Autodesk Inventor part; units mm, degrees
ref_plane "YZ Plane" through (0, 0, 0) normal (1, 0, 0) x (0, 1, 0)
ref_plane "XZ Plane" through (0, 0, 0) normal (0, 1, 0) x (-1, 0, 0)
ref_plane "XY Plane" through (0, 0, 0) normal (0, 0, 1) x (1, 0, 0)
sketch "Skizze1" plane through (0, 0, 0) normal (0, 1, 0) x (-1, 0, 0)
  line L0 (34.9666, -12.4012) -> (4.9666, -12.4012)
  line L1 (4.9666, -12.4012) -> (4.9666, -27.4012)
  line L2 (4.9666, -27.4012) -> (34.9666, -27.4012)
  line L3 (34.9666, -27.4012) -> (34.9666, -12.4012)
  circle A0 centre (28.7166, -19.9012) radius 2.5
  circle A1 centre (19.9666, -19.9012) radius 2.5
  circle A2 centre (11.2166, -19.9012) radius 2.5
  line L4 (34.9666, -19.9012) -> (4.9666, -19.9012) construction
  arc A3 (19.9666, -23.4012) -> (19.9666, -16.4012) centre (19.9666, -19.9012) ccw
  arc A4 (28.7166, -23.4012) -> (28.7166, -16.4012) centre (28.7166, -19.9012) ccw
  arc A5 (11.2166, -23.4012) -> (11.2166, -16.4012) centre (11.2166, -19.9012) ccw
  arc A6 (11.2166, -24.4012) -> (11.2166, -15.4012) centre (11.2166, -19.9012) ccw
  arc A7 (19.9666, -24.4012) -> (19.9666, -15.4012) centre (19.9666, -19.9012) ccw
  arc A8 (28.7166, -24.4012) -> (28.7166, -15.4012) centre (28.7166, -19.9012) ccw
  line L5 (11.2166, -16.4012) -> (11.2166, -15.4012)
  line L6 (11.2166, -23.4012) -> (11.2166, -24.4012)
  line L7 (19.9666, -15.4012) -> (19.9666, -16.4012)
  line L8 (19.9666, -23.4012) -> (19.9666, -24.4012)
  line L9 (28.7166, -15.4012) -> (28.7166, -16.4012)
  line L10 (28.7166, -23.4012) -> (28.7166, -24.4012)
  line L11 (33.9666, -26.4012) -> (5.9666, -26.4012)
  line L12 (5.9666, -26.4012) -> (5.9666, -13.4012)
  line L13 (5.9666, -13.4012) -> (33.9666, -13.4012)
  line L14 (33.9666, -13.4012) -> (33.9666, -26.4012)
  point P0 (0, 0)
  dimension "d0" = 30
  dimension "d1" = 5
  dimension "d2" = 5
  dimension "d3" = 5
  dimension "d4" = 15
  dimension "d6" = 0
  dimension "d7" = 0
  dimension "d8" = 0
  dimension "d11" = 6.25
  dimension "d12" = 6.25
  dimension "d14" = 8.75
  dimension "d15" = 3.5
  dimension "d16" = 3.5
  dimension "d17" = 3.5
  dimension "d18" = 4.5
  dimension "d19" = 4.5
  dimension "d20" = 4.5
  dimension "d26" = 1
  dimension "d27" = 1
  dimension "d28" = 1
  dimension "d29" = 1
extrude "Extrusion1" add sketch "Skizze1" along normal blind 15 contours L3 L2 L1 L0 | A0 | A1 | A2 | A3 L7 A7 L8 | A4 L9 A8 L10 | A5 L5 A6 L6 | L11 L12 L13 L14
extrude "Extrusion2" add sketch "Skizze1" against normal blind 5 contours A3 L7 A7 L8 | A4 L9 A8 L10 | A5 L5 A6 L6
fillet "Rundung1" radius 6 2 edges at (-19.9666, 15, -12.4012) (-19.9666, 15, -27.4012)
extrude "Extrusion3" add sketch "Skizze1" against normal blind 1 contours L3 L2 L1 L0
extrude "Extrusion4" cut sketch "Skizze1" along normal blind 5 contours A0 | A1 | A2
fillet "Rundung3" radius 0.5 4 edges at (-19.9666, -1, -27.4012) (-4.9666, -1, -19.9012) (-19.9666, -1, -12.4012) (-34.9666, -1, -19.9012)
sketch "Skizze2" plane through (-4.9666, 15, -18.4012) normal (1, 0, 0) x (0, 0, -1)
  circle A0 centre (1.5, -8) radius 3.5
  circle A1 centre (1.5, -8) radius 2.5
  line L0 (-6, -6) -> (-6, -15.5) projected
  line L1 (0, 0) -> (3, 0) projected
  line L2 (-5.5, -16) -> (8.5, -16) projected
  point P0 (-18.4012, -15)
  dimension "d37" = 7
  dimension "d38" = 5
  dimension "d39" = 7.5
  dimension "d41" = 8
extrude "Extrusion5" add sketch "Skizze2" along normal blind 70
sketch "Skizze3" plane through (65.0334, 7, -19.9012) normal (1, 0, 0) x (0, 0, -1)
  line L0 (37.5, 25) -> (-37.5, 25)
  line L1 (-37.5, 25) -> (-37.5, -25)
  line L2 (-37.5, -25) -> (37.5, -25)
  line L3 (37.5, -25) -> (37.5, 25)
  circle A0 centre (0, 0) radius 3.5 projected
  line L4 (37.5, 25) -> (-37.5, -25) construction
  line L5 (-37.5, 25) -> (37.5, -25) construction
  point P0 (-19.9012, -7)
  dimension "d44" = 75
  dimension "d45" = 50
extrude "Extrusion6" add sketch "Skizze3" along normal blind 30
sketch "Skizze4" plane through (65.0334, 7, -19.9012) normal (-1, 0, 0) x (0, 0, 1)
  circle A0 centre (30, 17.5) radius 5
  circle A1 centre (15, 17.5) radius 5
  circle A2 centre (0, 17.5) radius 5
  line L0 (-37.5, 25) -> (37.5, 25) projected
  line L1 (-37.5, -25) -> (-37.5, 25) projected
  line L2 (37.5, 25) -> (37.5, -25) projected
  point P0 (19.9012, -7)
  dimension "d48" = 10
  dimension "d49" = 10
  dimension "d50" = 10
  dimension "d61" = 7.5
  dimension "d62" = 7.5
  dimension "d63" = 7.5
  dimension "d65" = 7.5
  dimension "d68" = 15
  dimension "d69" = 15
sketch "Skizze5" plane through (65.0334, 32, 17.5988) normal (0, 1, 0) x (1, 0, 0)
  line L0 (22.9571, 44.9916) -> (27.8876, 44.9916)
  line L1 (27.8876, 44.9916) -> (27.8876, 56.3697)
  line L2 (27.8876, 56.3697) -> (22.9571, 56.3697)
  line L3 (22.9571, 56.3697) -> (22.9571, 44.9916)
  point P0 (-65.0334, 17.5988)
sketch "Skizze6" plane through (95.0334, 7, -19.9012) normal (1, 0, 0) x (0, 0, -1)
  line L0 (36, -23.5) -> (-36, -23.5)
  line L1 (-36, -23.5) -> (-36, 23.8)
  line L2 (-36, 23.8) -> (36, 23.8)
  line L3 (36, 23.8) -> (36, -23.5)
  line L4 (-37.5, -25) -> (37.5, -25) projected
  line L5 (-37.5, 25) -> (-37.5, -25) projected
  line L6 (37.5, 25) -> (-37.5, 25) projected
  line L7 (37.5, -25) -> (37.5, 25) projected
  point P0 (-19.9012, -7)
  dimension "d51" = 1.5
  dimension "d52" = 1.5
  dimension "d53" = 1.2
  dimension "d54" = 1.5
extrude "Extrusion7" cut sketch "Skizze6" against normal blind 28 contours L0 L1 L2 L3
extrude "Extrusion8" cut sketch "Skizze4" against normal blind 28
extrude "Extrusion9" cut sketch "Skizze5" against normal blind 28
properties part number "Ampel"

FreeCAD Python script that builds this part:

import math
import FreeCAD as App
import Part
import Sketcher

V = App.Vector


def edges_at(feature, points):
    """Names of the edges that pass closest to the given points."""
    edges = feature.Shape.Edges
    near = lambda p: min(range(len(edges)), key=lambda i: edges[i].distToShape(Part.Vertex(*p))[0])
    return sorted({f"Edge{near(p) + 1}" for p in points})

doc = App.newDocument("Part")
body = doc.addObject("PartDesign::Body", "Body")
body.AllowCompound = True

# Sketch on XZ plane
sketch1 = body.newObject("Sketcher::SketchObject", "Sketch")
sketch1.AttachmentSupport = (doc.getObject("XZ_Plane"), [""])
sketch1.MapMode = "FlatFace"
sketch1.addGeometry([
    Part.LineSegment(V(-35, -27, 0), V(-35, -12, 0)),
    Part.LineSegment(V(-35, -12, 0), V(-5, -12, 0)),
    Part.LineSegment(V(-5, -12, 0), V(-5, -27, 0)),
    Part.LineSegment(V(-5, -27, 0), V(-35, -27, 0)),
], False)
sketch1.addConstraint([
    Sketcher.Constraint("Coincident", 0, 2, 1, 1),
    Sketcher.Constraint("Coincident", 1, 2, 2, 1),
    Sketcher.Constraint("Coincident", 2, 2, 3, 1),
    Sketcher.Constraint("Coincident", 3, 2, 0, 1),
    Sketcher.Constraint("Vertical", 0),
    Sketcher.Constraint("Horizontal", 1),
    Sketcher.Constraint("Vertical", 2),
    Sketcher.Constraint("Horizontal", 3),
    Sketcher.Constraint("DistanceX", 1, 1, 1, 2, 30.0),
    Sketcher.Constraint("DistanceY", 0, 1, 0, 2, 15.0),
    Sketcher.Constraint("DistanceX", 0, 2, -1, 1, 34.9666),
    Sketcher.Constraint("DistanceY", 0, 2, -1, 1, 12.4012),
])
pad1 = body.newObject("PartDesign::Pad", "Pad")
pad1.Profile = sketch1
pad1.Length = 15
pad1.Reversed = True

# Sketch on XZ plane
sketch2 = body.newObject("Sketcher::SketchObject", "Sketch001")
sketch2.AttachmentSupport = (doc.getObject("XZ_Plane"), [""])
sketch2.MapMode = "FlatFace"
sketch2.addGeometry([
    Part.ArcOfCircle(Part.Circle(V(-20, -19.9, 0), V(0, 0, 1), 3.5), math.radians(90), math.radians(270)),  # 0
    Part.LineSegment(V(-20, -23.4, 0), V(-20, -24.4, 0)),  # 1
    Part.ArcOfCircle(Part.Circle(V(-20, -19.9, 0), V(0, 0, 1), 4.5), math.radians(90), math.radians(270)),  # 2
    Part.LineSegment(V(-20, -15.4, 0), V(-20, -16.4, 0)),  # 3
    Part.ArcOfCircle(Part.Circle(V(-28.7, -19.9, 0), V(0, 0, 1), 3.5), math.radians(90), math.radians(270)),  # 4
    Part.LineSegment(V(-28.7, -23.4, 0), V(-28.7, -24.4, 0)),  # 5
    Part.ArcOfCircle(Part.Circle(V(-28.7, -19.9, 0), V(0, 0, 1), 4.5), math.radians(90), math.radians(270)),  # 6
    Part.LineSegment(V(-28.7, -15.4, 0), V(-28.7, -16.4, 0)),  # 7
    Part.ArcOfCircle(Part.Circle(V(-11.2, -19.9, 0), V(0, 0, 1), 3.5), math.radians(90), math.radians(270)),  # 8
    Part.LineSegment(V(-11.2, -23.4, 0), V(-11.2, -24.4, 0)),  # 9
    Part.ArcOfCircle(Part.Circle(V(-11.2, -19.9, 0), V(0, 0, 1), 4.5), math.radians(90), math.radians(270)),  # 10
    Part.LineSegment(V(-11.2, -15.4, 0), V(-11.2, -16.4, 0)),  # 11
], False)
sketch2.addConstraint([
    Sketcher.Constraint("Coincident", 0, 2, 1, 1),
    Sketcher.Constraint("Coincident", 1, 2, 2, 2),
    Sketcher.Constraint("Coincident", 2, 1, 3, 1),
    Sketcher.Constraint("Coincident", 3, 2, 0, 1),
    Sketcher.Constraint("Coincident", 4, 2, 5, 1),
    Sketcher.Constraint("Coincident", 5, 2, 6, 2),
    Sketcher.Constraint("Coincident", 6, 1, 7, 1),
    Sketcher.Constraint("Coincident", 7, 2, 4, 1),
    Sketcher.Constraint("Coincident", 8, 2, 9, 1),
    Sketcher.Constraint("Coincident", 9, 2, 10, 2),
    Sketcher.Constraint("Coincident", 10, 1, 11, 1),
    Sketcher.Constraint("Coincident", 11, 2, 8, 1),
    Sketcher.Constraint("Vertical", 1),
    Sketcher.Constraint("Vertical", 3),
    Sketcher.Constraint("Vertical", 5),
    Sketcher.Constraint("Vertical", 7),
    Sketcher.Constraint("Vertical", 9),
    Sketcher.Constraint("Vertical", 11),
    Sketcher.Constraint("Coincident", 2, 3, 0, 3),
    Sketcher.Constraint("Coincident", 6, 3, 4, 3),
    Sketcher.Constraint("Coincident", 10, 3, 8, 3),
    Sketcher.Constraint("Equal", 0, 4),
    Sketcher.Constraint("Equal", 2, 6),
    Sketcher.Constraint("Equal", 4, 8),
    Sketcher.Constraint("Equal", 6, 10),
    Sketcher.Constraint("Horizontal", 2, 3, 4, 3),
    Sketcher.Constraint("Horizontal", 6, 3, 8, 3),
    Sketcher.Constraint("Vertical", 2, 3, 0, 2),
    Sketcher.Constraint("Vertical", 1, 2, 2, 1),
    Sketcher.Constraint("Vertical", 6, 3, 4, 2),
    Sketcher.Constraint("Vertical", 5, 2, 6, 1),
    Sketcher.Constraint("Vertical", 10, 3, 8, 2),
    Sketcher.Constraint("Vertical", 9, 2, 10, 1),
    Sketcher.Constraint("Radius", 0, 3.5),
    Sketcher.Constraint("Radius", 2, 4.5),
    Sketcher.Constraint("DistanceX", 4, 3, 0, 3, 8.75),
    Sketcher.Constraint("DistanceX", 0, 3, 8, 3, 8.75),
    Sketcher.Constraint("DistanceX", 0, 3, -1, 1, 19.9666),
    Sketcher.Constraint("DistanceY", 0, 3, -1, 1, 19.9012),
])
pad2 = body.newObject("PartDesign::Pad", "Pad001")
pad2.Profile = sketch2
pad2.Length = 5
doc.recompute()

fillet = body.newObject("PartDesign::Fillet", "Fillet")
fillet.Base = (pad2, edges_at(pad2, [(-19.967, 15, -12.401), (-19.967, 15, -27.401)]))
fillet.Radius = 6

# Sketch on XZ plane
sketch3 = body.newObject("Sketcher::SketchObject", "Sketch002")
sketch3.AttachmentSupport = (doc.getObject("XZ_Plane"), [""])
sketch3.MapMode = "FlatFace"
sketch3.addGeometry([
    Part.LineSegment(V(-35, -27, 0), V(-35, -12, 0)),  # 0
    Part.LineSegment(V(-35, -12, 0), V(-5, -12, 0)),  # 1
    Part.LineSegment(V(-5, -12, 0), V(-5, -27, 0)),  # 2
    Part.LineSegment(V(-5, -27, 0), V(-35, -27, 0)),  # 3
    Part.LineSegment(V(-34, -13, 0), V(-34, -26, 0)),  # 4
    Part.LineSegment(V(-34, -26, 0), V(-6, -26, 0)),  # 5
    Part.LineSegment(V(-6, -26, 0), V(-6, -13, 0)),  # 6
    Part.LineSegment(V(-6, -13, 0), V(-34, -13, 0)),  # 7
], False)
sketch3.addConstraint([
    Sketcher.Constraint("Coincident", 0, 2, 1, 1),
    Sketcher.Constraint("Coincident", 1, 2, 2, 1),
    Sketcher.Constraint("Coincident", 2, 2, 3, 1),
    Sketcher.Constraint("Coincident", 3, 2, 0, 1),
    Sketcher.Constraint("Coincident", 4, 2, 5, 1),
    Sketcher.Constraint("Coincident", 5, 2, 6, 1),
    Sketcher.Constraint("Coincident", 6, 2, 7, 1),
    Sketcher.Constraint("Coincident", 7, 2, 4, 1),
    Sketcher.Constraint("Vertical", 0),
    Sketcher.Constraint("Horizontal", 1),
    Sketcher.Constraint("Vertical", 2),
    Sketcher.Constraint("Horizontal", 3),
    Sketcher.Constraint("Vertical", 4),
    Sketcher.Constraint("Horizontal", 5),
    Sketcher.Constraint("Vertical", 6),
    Sketcher.Constraint("Horizontal", 7),
    Sketcher.Constraint("DistanceX", 1, 1, 1, 2, 30.0),
    Sketcher.Constraint("DistanceY", 0, 1, 0, 2, 15.0),
    Sketcher.Constraint("DistanceX", 3, 2, 4, 2, 1.0),
    Sketcher.Constraint("DistanceY", 3, 2, 4, 2, 1.0),
    Sketcher.Constraint("DistanceX", 5, 2, 2, 2, 1.0),
    Sketcher.Constraint("DistanceY", 6, 2, 1, 2, 1.0),
    Sketcher.Constraint("DistanceX", 0, 2, -1, 1, 34.9666),
    Sketcher.Constraint("DistanceY", 0, 2, -1, 1, 12.4012),
])
pad3 = body.newObject("PartDesign::Pad", "Pad002")
pad3.Profile = sketch3
pad3.Length = 1

# Sketch on XZ plane
sketch4 = body.newObject("Sketcher::SketchObject", "Sketch003")
sketch4.AttachmentSupport = (doc.getObject("XZ_Plane"), [""])
sketch4.MapMode = "FlatFace"
sketch4.addGeometry([
    Part.Circle(V(-28.7, -19.9, 0), V(0, 0, 1), 2.5),
    Part.Circle(V(-20, -19.9, 0), V(0, 0, 1), 2.5),
    Part.Circle(V(-11.2, -19.9, 0), V(0, 0, 1), 2.5),
], False)
sketch4.addConstraint([
    Sketcher.Constraint("Equal", 0, 1),
    Sketcher.Constraint("Equal", 1, 2),
    Sketcher.Constraint("Horizontal", 0, 3, 1, 3),
    Sketcher.Constraint("Horizontal", 1, 3, 2, 3),
    Sketcher.Constraint("Diameter", 0, 5.0),
    Sketcher.Constraint("DistanceX", 0, 3, 1, 3, 8.75),
    Sketcher.Constraint("DistanceX", 1, 3, 2, 3, 8.75),
    Sketcher.Constraint("DistanceX", 0, 3, -1, 1, 28.7166),
    Sketcher.Constraint("DistanceY", 0, 3, -1, 1, 19.9012),
])
pocket1 = body.newObject("PartDesign::Pocket", "Pocket")
pocket1.Profile = sketch4
pocket1.Length = 5
doc.recompute()

fillet2 = body.newObject("PartDesign::Fillet", "Fillet001")
fillet2.Base = (pocket1, edges_at(pocket1, [
    (-19.967, -1, -27.401),
    (-4.967, -1, -19.901),
    (-19.967, -1, -12.401),
    (-34.967, -1, -19.901),
]))
fillet2.Radius = 0.5

# Sketch on YZ plane
sketch5 = body.newObject("Sketcher::SketchObject", "Sketch004")
sketch5.AttachmentSupport = (doc.getObject("YZ_Plane"), [""])
sketch5.MapMode = "FlatFace"
sketch5.AttachmentOffset = App.Placement(V(0, 0, -4.9666), App.Rotation())
sketch5.addGeometry([
    Part.Circle(V(7, -19.9, 0), V(0, 0, 1), 3.5),
    Part.Circle(V(7, -19.9, 0), V(0, 0, 1), 2.5),
], False)
sketch5.addConstraint([
    Sketcher.Constraint("Coincident", 1, 3, 0, 3),
    Sketcher.Constraint("Diameter", 0, 7.0),
    Sketcher.Constraint("Diameter", 1, 5.0),
    Sketcher.Constraint("DistanceX", -1, 1, 0, 3, 7.0),
    Sketcher.Constraint("DistanceY", 0, 3, -1, 1, 19.9012),
])
pad4 = body.newObject("PartDesign::Pad", "Pad003")
pad4.Profile = sketch5
pad4.Length = 70

# Sketch on YZ plane
sketch6 = body.newObject("Sketcher::SketchObject", "Sketch005")
sketch6.AttachmentSupport = (doc.getObject("YZ_Plane"), [""])
sketch6.MapMode = "FlatFace"
sketch6.AttachmentOffset = App.Placement(V(0, 0, 65.0334), App.Rotation())
sketch6.addGeometry([
    Part.LineSegment(V(-18, -57.4, 0), V(32, -57.4, 0)),  # 0
    Part.LineSegment(V(32, -57.4, 0), V(32, 17.6, 0)),  # 1
    Part.LineSegment(V(32, 17.6, 0), V(-18, 17.6, 0)),  # 2
    Part.LineSegment(V(-18, 17.6, 0), V(-18, -57.4, 0)),  # 3
    Part.Circle(V(7, -19.9, 0), V(0, 0, 1), 3.5),  # 4
], False)
sketch6.addConstraint([
    Sketcher.Constraint("Coincident", 0, 2, 1, 1),
    Sketcher.Constraint("Coincident", 1, 2, 2, 1),
    Sketcher.Constraint("Coincident", 2, 2, 3, 1),
    Sketcher.Constraint("Coincident", 3, 2, 0, 1),
    Sketcher.Constraint("Horizontal", 0),
    Sketcher.Constraint("Vertical", 1),
    Sketcher.Constraint("Horizontal", 2),
    Sketcher.Constraint("Vertical", 3),
    Sketcher.Constraint("DistanceX", 0, 1, 0, 2, 50.0),
    Sketcher.Constraint("DistanceY", 1, 1, 1, 2, 75.0),
    Sketcher.Constraint("Diameter", 4, 7.0),
    Sketcher.Constraint("DistanceX", -1, 1, 4, 3, 7.0),
    Sketcher.Constraint("DistanceX", -1, 1, 0, 2, 32.0),
    Sketcher.Constraint("DistanceY", 0, 2, 4, 3, 37.5),
    Sketcher.Constraint("DistanceY", 4, 3, -1, 1, 19.9012),
])
pad5 = body.newObject("PartDesign::Pad", "Pad004")
pad5.Profile = sketch6
pad5.Length = 30

# Sketch on YZ plane
sketch7 = body.newObject("Sketcher::SketchObject", "Sketch006")
sketch7.AttachmentSupport = (doc.getObject("YZ_Plane"), [""])
sketch7.MapMode = "FlatFace"
sketch7.AttachmentOffset = App.Placement(V(0, 0, 95.0334), App.Rotation())
sketch7.addGeometry([
    Part.LineSegment(V(-16, 16, 0), V(-16, -56, 0)),
    Part.LineSegment(V(-16, -56, 0), V(31, -56, 0)),
    Part.LineSegment(V(31, -56, 0), V(31, 16, 0)),
    Part.LineSegment(V(31, 16, 0), V(-16, 16, 0)),
], False)
sketch7.addConstraint([
    Sketcher.Constraint("Coincident", 0, 2, 1, 1),
    Sketcher.Constraint("Coincident", 1, 2, 2, 1),
    Sketcher.Constraint("Coincident", 2, 2, 3, 1),
    Sketcher.Constraint("Coincident", 3, 2, 0, 1),
    Sketcher.Constraint("Vertical", 0),
    Sketcher.Constraint("Horizontal", 1),
    Sketcher.Constraint("Vertical", 2),
    Sketcher.Constraint("Horizontal", 3),
    Sketcher.Constraint("DistanceY", 0, 2, 0, 1, 72.0),
    Sketcher.Constraint("DistanceX", 1, 1, 1, 2, 47.3),
    Sketcher.Constraint("DistanceX", 0, 2, -1, 1, 16.5),
    Sketcher.Constraint("DistanceY", 0, 2, -1, 1, 55.9012),
])
pocket2 = body.newObject("PartDesign::Pocket", "Pocket001")
pocket2.Profile = sketch7
pocket2.Length = 28

# Sketch on YZ plane
sketch8 = body.newObject("Sketcher::SketchObject", "Sketch007")
sketch8.AttachmentSupport = (doc.getObject("YZ_Plane"), [""])
sketch8.MapMode = "FlatFace"
sketch8.AttachmentOffset = App.Placement(V(0, 0, 65.0334), App.Rotation())
sketch8.addGeometry([
    Part.Circle(V(24, 10, 0), V(0, 0, 1), 5),
    Part.Circle(V(24, -5, 0), V(0, 0, 1), 5),
    Part.Circle(V(24, -20, 0), V(0, 0, 1), 5),
], False)
sketch8.addConstraint([
    Sketcher.Constraint("Equal", 0, 1),
    Sketcher.Constraint("Equal", 1, 2),
    Sketcher.Constraint("Vertical", 0, 3, 1, 3),
    Sketcher.Constraint("Vertical", 1, 3, 2, 3),
    Sketcher.Constraint("Diameter", 0, 10.0),
    Sketcher.Constraint("DistanceY", 1, 3, 0, 3, 15.0),
    Sketcher.Constraint("DistanceY", 2, 3, 1, 3, 15.0),
    Sketcher.Constraint("DistanceX", -1, 1, 0, 3, 24.5),
    Sketcher.Constraint("DistanceY", -1, 1, 0, 3, 10.0988),
])
pocket3 = body.newObject("PartDesign::Pocket", "Pocket002")
pocket3.Profile = sketch8
pocket3.Length = 28
pocket3.Reversed = True

# Sketch on XZ plane
sketch9 = body.newObject("Sketcher::SketchObject", "Sketch008")
sketch9.AttachmentSupport = (doc.getObject("XZ_Plane"), [""])
sketch9.MapMode = "FlatFace"
sketch9.AttachmentOffset = App.Placement(V(0, 0, -32), App.Rotation())
sketch9.addGeometry([
    Part.LineSegment(V(88, -38.8, 0), V(88, -27.4, 0)),
    Part.LineSegment(V(88, -27.4, 0), V(92.9, -27.4, 0)),
    Part.LineSegment(V(92.9, -27.4, 0), V(92.9, -38.8, 0)),
    Part.LineSegment(V(92.9, -38.8, 0), V(88, -38.8, 0)),
], False)
sketch9.addConstraint([
    Sketcher.Constraint("Coincident", 0, 2, 1, 1),
    Sketcher.Constraint("Coincident", 1, 2, 2, 1),
    Sketcher.Constraint("Coincident", 2, 2, 3, 1),
    Sketcher.Constraint("Coincident", 3, 2, 0, 1),
    Sketcher.Constraint("Vertical", 0),
    Sketcher.Constraint("Horizontal", 1),
    Sketcher.Constraint("Vertical", 2),
    Sketcher.Constraint("Horizontal", 3),
    Sketcher.Constraint("DistanceY", 0, 1, 0, 2, 11.378),
    Sketcher.Constraint("DistanceX", 1, 1, 1, 2, 4.9305),
    Sketcher.Constraint("DistanceX", -1, 1, 1, 2, 92.921),
    Sketcher.Constraint("DistanceY", 2, 2, -1, 1, 38.771),
])
pocket4 = body.newObject("PartDesign::Pocket", "Pocket003")
pocket4.Profile = sketch9
pocket4.Length = 28
pocket4.Reversed = True

doc.recompute()
